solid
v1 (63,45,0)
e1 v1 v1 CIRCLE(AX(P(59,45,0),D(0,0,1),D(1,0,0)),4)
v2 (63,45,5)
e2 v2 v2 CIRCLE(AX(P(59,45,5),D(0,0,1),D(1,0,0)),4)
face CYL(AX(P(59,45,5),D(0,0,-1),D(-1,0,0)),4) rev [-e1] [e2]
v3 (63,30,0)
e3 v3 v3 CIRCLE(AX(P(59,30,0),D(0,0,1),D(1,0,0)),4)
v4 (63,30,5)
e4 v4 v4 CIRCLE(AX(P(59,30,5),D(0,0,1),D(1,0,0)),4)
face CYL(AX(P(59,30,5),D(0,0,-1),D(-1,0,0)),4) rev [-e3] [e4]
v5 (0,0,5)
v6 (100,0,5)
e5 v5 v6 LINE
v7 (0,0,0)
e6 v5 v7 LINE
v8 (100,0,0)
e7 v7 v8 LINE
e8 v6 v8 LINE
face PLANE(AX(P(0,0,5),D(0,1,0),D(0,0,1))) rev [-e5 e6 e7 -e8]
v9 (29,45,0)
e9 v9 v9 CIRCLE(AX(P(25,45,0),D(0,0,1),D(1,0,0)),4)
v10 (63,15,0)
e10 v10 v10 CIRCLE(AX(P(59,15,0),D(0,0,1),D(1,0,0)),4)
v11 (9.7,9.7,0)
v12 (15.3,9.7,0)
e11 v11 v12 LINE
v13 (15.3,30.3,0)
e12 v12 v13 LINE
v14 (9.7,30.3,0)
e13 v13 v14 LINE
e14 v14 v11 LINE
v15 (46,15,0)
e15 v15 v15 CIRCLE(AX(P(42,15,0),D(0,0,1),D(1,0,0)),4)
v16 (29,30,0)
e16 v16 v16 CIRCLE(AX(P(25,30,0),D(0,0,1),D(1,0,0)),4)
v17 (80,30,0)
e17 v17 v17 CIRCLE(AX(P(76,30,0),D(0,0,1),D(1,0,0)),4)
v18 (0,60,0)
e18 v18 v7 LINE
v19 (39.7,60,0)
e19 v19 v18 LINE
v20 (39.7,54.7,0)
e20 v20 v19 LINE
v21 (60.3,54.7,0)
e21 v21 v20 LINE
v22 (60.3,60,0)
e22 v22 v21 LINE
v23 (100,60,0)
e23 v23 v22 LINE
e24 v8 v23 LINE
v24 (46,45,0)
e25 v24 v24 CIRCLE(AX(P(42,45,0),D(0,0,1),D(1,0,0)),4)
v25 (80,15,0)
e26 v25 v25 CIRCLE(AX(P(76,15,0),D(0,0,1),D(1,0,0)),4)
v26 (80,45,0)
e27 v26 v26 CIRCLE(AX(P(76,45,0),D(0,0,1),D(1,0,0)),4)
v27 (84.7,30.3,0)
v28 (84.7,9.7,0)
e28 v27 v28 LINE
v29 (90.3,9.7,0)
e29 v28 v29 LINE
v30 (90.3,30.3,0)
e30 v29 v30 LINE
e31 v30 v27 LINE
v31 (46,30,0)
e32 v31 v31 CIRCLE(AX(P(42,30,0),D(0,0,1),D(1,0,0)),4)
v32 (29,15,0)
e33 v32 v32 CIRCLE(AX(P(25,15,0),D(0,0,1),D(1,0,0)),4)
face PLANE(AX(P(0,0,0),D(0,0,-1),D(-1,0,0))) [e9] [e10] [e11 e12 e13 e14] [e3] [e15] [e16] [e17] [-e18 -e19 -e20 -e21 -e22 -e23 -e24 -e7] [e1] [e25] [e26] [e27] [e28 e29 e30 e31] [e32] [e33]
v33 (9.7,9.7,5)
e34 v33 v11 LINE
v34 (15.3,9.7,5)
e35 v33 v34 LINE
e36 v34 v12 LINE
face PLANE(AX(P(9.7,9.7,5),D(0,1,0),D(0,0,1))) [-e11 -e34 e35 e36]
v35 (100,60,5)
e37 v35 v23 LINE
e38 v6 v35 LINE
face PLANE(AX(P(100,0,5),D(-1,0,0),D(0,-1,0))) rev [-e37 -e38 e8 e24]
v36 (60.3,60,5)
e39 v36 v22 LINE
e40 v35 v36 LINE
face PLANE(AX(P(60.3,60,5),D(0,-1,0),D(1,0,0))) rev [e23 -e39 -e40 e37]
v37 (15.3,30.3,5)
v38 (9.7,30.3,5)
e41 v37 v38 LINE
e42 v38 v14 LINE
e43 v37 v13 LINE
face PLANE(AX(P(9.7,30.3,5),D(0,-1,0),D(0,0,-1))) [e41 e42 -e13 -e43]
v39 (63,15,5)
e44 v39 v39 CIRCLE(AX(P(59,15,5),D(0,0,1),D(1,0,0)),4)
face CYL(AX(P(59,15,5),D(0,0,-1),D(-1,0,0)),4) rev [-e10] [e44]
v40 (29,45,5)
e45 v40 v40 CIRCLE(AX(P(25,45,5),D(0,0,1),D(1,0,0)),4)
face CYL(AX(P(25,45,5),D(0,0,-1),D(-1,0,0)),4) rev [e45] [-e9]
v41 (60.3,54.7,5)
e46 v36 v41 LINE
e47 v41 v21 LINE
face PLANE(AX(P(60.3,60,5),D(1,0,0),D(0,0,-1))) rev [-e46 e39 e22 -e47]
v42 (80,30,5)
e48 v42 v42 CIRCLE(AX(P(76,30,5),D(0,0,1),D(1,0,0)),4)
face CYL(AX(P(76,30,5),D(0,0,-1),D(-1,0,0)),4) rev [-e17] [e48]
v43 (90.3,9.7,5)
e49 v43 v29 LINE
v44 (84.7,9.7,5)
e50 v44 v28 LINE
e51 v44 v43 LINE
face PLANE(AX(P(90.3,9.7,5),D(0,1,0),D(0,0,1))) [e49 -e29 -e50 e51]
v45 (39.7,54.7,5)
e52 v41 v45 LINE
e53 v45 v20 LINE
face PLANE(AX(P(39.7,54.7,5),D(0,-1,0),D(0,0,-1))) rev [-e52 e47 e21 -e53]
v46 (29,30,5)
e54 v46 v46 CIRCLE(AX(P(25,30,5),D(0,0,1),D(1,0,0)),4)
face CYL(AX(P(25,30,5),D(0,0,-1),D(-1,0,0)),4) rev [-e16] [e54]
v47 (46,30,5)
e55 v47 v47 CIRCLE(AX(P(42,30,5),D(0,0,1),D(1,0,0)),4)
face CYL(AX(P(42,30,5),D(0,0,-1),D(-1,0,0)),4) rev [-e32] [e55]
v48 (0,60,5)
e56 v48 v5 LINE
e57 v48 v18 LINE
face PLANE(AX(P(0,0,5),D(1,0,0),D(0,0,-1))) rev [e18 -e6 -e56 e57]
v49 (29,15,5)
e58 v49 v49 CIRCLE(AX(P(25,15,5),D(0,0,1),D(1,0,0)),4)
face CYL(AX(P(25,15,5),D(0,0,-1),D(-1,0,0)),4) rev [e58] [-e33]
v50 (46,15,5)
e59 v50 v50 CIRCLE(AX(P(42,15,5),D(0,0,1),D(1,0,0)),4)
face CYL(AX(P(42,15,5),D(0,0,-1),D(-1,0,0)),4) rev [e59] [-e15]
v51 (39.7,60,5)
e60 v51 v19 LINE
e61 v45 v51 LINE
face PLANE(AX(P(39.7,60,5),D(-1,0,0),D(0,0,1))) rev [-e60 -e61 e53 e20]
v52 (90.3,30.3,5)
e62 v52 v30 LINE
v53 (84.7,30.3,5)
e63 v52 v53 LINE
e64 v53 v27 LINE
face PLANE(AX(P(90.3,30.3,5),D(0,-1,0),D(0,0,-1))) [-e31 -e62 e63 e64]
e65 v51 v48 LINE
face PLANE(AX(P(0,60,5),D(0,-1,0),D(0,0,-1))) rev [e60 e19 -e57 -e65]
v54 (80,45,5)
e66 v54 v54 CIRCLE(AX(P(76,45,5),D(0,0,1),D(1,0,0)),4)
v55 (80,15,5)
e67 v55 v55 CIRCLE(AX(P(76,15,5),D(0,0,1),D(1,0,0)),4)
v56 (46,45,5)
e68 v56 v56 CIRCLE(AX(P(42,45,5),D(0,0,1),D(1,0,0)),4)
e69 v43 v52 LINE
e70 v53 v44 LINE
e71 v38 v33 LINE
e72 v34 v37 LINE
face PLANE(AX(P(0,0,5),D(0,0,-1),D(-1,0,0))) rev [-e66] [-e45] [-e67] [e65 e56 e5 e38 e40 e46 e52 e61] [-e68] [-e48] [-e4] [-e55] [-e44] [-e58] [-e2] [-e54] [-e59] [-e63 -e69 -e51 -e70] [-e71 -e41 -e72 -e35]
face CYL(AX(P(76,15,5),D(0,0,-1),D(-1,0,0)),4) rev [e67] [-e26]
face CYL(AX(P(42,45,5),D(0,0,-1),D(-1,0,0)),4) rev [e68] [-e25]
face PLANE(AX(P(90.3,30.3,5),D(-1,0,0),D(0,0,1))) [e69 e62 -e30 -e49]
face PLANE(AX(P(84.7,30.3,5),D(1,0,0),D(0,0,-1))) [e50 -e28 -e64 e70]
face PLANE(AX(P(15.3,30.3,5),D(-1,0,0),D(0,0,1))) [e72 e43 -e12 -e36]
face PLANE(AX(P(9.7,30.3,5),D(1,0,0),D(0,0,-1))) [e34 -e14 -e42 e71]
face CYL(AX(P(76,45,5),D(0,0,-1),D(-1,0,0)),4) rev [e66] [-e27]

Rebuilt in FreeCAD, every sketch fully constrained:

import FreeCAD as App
import Part
import Sketcher


def add_polygon(sketch, points):
    """Adds a closed chain of lines whose ends are joined by coincident constraints."""
    first, n = sketch.GeometryCount, len(points)
    for a, b in zip(points, points[1:] + points[:1]):
        sketch.addGeometry(Part.LineSegment(App.Vector(*a, 0), App.Vector(*b, 0)), False)
    for i in range(n):
        sketch.addConstraint(Sketcher.Constraint("Coincident", first + i, 2, first + (i + 1) % n, 1))

doc = App.newDocument("Part")
params = doc.addObject("Spreadsheet::Sheet", "Params")
for row, (alias, value) in enumerate([
    ("sketch1_diameter", "8 mm"),
    ("sketch1_width", "100 mm"),
    ("sketch1_height", "60 mm"),
    ("sketch1_width2", "39.7 mm"),
    ("sketch1_width3", "5.6 mm"),
    ("pad1_length", "5 mm"),
], start=1):
    params.set(f"A{row}", alias)
    params.set(f"B{row}", "=" + value)
    params.setAlias(f"B{row}", alias)

body = doc.addObject("PartDesign::Body", "Body")

sketch1 = doc.addObject("Sketcher::SketchObject", "Sketch")
body.addObject(sketch1)
sketch1.AttachmentSupport = (doc.XY_Plane, [""])
sketch1.MapMode = "FlatFace"
add_polygon(sketch1, [(0, 0), (100, 0), (100, 60), (60.3, 60), (60.3, 54.7), (39.7, 54.7), (39.7, 60), (0, 60)])
sketch1.addGeometry(Part.Circle(App.Vector(25, 15, 0), App.Vector(0, 0, 1), 4), False)
sketch1.addGeometry(Part.Circle(App.Vector(42, 15, 0), App.Vector(0, 0, 1), 4), False)
add_polygon(sketch1, [(15.3, 9.7), (9.7, 9.7), (9.7, 30.3), (15.3, 30.3)])
sketch1.addGeometry(Part.Circle(App.Vector(59, 15, 0), App.Vector(0, 0, 1), 4), False)
sketch1.addGeometry(Part.Circle(App.Vector(76, 15, 0), App.Vector(0, 0, 1), 4), False)
add_polygon(sketch1, [(90.3, 9.7), (84.7, 9.7), (84.7, 30.3), (90.3, 30.3)])
sketch1.addGeometry(Part.Circle(App.Vector(25, 30, 0), App.Vector(0, 0, 1), 4), False)
sketch1.addGeometry(Part.Circle(App.Vector(42, 30, 0), App.Vector(0, 0, 1), 4), False)
sketch1.addGeometry(Part.Circle(App.Vector(25, 45, 0), App.Vector(0, 0, 1), 4), False)
sketch1.addGeometry(Part.Circle(App.Vector(42, 45, 0), App.Vector(0, 0, 1), 4), False)
sketch1.addGeometry(Part.Circle(App.Vector(59, 30, 0), App.Vector(0, 0, 1), 4), False)
sketch1.addGeometry(Part.Circle(App.Vector(76, 30, 0), App.Vector(0, 0, 1), 4), False)
sketch1.addGeometry(Part.Circle(App.Vector(59, 45, 0), App.Vector(0, 0, 1), 4), False)
sketch1.addGeometry(Part.Circle(App.Vector(76, 45, 0), App.Vector(0, 0, 1), 4), False)
sketch1.addConstraint([
    Sketcher.Constraint("Horizontal", 0),
    Sketcher.Constraint("Vertical", 1),
    Sketcher.Constraint("Horizontal", 2),
    Sketcher.Constraint("Vertical", 3),
    Sketcher.Constraint("Horizontal", 4),
    Sketcher.Constraint("Vertical", 5),
    Sketcher.Constraint("Horizontal", 6),
    Sketcher.Constraint("Vertical", 7),
    Sketcher.Constraint("Horizontal", 10),
    Sketcher.Constraint("Vertical", 11),
    Sketcher.Constraint("Horizontal", 12),
    Sketcher.Constraint("Vertical", 13),
    Sketcher.Constraint("Horizontal", 16),
    Sketcher.Constraint("Vertical", 17),
    Sketcher.Constraint("Horizontal", 18),
    Sketcher.Constraint("Vertical", 19),
    Sketcher.Constraint("Coincident", 7, 2, -1, 1),
    Sketcher.Constraint("Equal", 8, 9),
    Sketcher.Constraint("Equal", 9, 14),
    Sketcher.Constraint("Equal", 14, 15),
    Sketcher.Constraint("Equal", 15, 20),
    Sketcher.Constraint("Equal", 20, 21),
    Sketcher.Constraint("Equal", 21, 22),
    Sketcher.Constraint("Equal", 22, 23),
    Sketcher.Constraint("Equal", 23, 24),
    Sketcher.Constraint("Equal", 24, 25),
    Sketcher.Constraint("Equal", 25, 26),
    Sketcher.Constraint("Equal", 26, 27),
    Sketcher.Constraint("Horizontal", 8, 3, 9, 3),
    Sketcher.Constraint("Horizontal", 9, 3, 14, 3),
    Sketcher.Constraint("Horizontal", 14, 3, 15, 3),
    Sketcher.Constraint("Horizontal", 20, 3, 21, 3),
    Sketcher.Constraint("Horizontal", 22, 3, 23, 3),
    Sketcher.Constraint("Horizontal", 21, 3, 24, 3),
    Sketcher.Constraint("Horizontal", 24, 3, 25, 3),
    Sketcher.Constraint("Horizontal", 23, 3, 26, 3),
    Sketcher.Constraint("Horizontal", 26, 3, 27, 3),
    Sketcher.Constraint("Horizontal", 2, 2, 5, 2),
    Sketcher.Constraint("Horizontal", 13, 2, 16, 2),
    Sketcher.Constraint("Horizontal", 12, 2, 17, 2),
    Sketcher.Constraint("Vertical", 8, 3, 20, 3),
    Sketcher.Constraint("Vertical", 9, 3, 21, 3),
    Sketcher.Constraint("Vertical", 20, 3, 22, 3),
    Sketcher.Constraint("Vertical", 21, 3, 23, 3),
    Sketcher.Constraint("Vertical", 14, 3, 24, 3),
    Sketcher.Constraint("Vertical", 15, 3, 25, 3),
    Sketcher.Constraint("Vertical", 24, 3, 26, 3),
    Sketcher.Constraint("Vertical", 25, 3, 27, 3),
    Sketcher.Constraint("Equal", 2, 6),
    Sketcher.Constraint("Equal", 12, 16),
    Sketcher.Constraint("Equal", 4, 11),
    Sketcher.Constraint("Diameter", 8, 8.0),
    Sketcher.Constraint("DistanceX", 0, 1, 0, 2, 100.0),
    Sketcher.Constraint("DistanceY", 1, 1, 1, 2, 60.0),
    Sketcher.Constraint("DistanceX", 2, 2, 2, 1, 39.7),
    Sketcher.Constraint("DistanceX", 10, 2, 10, 1, 5.6),
    Sketcher.Constraint("DistanceY", 3, 2, 3, 1, 5.3),
    Sketcher.Constraint("DistanceX", -1, 1, 8, 3, 25.0),
    Sketcher.Constraint("DistanceY", -1, 1, 8, 3, 15.0),
    Sketcher.Constraint("DistanceX", -1, 1, 9, 3, 42.0),
    Sketcher.Constraint("DistanceX", -1, 1, 14, 3, 59.0),
    Sketcher.Constraint("DistanceX", -1, 1, 15, 3, 76.0),
    Sketcher.Constraint("DistanceY", -1, 1, 20, 3, 30.0),
    Sketcher.Constraint("DistanceY", -1, 1, 22, 3, 45.0),
    Sketcher.Constraint("DistanceX", -1, 1, 10, 2, 9.7),
    Sketcher.Constraint("DistanceY", -1, 1, 10, 2, 9.7),
    Sketcher.Constraint("DistanceX", -1, 1, 16, 2, 84.7),
])
sketch1.setExpression("Constraints[67]", "Params.sketch1_diameter")
sketch1.setExpression("Constraints[68]", "Params.sketch1_width")
sketch1.setExpression("Constraints[69]", "Params.sketch1_height")
sketch1.setExpression("Constraints[70]", "Params.sketch1_width2")
sketch1.setExpression("Constraints[71]", "Params.sketch1_width3")
pad1 = doc.addObject("PartDesign::Pad", "Pad")
body.addObject(pad1)
pad1.Profile = sketch1
pad1.setExpression("Length", "Params.pad1_length")

doc.recompute()
